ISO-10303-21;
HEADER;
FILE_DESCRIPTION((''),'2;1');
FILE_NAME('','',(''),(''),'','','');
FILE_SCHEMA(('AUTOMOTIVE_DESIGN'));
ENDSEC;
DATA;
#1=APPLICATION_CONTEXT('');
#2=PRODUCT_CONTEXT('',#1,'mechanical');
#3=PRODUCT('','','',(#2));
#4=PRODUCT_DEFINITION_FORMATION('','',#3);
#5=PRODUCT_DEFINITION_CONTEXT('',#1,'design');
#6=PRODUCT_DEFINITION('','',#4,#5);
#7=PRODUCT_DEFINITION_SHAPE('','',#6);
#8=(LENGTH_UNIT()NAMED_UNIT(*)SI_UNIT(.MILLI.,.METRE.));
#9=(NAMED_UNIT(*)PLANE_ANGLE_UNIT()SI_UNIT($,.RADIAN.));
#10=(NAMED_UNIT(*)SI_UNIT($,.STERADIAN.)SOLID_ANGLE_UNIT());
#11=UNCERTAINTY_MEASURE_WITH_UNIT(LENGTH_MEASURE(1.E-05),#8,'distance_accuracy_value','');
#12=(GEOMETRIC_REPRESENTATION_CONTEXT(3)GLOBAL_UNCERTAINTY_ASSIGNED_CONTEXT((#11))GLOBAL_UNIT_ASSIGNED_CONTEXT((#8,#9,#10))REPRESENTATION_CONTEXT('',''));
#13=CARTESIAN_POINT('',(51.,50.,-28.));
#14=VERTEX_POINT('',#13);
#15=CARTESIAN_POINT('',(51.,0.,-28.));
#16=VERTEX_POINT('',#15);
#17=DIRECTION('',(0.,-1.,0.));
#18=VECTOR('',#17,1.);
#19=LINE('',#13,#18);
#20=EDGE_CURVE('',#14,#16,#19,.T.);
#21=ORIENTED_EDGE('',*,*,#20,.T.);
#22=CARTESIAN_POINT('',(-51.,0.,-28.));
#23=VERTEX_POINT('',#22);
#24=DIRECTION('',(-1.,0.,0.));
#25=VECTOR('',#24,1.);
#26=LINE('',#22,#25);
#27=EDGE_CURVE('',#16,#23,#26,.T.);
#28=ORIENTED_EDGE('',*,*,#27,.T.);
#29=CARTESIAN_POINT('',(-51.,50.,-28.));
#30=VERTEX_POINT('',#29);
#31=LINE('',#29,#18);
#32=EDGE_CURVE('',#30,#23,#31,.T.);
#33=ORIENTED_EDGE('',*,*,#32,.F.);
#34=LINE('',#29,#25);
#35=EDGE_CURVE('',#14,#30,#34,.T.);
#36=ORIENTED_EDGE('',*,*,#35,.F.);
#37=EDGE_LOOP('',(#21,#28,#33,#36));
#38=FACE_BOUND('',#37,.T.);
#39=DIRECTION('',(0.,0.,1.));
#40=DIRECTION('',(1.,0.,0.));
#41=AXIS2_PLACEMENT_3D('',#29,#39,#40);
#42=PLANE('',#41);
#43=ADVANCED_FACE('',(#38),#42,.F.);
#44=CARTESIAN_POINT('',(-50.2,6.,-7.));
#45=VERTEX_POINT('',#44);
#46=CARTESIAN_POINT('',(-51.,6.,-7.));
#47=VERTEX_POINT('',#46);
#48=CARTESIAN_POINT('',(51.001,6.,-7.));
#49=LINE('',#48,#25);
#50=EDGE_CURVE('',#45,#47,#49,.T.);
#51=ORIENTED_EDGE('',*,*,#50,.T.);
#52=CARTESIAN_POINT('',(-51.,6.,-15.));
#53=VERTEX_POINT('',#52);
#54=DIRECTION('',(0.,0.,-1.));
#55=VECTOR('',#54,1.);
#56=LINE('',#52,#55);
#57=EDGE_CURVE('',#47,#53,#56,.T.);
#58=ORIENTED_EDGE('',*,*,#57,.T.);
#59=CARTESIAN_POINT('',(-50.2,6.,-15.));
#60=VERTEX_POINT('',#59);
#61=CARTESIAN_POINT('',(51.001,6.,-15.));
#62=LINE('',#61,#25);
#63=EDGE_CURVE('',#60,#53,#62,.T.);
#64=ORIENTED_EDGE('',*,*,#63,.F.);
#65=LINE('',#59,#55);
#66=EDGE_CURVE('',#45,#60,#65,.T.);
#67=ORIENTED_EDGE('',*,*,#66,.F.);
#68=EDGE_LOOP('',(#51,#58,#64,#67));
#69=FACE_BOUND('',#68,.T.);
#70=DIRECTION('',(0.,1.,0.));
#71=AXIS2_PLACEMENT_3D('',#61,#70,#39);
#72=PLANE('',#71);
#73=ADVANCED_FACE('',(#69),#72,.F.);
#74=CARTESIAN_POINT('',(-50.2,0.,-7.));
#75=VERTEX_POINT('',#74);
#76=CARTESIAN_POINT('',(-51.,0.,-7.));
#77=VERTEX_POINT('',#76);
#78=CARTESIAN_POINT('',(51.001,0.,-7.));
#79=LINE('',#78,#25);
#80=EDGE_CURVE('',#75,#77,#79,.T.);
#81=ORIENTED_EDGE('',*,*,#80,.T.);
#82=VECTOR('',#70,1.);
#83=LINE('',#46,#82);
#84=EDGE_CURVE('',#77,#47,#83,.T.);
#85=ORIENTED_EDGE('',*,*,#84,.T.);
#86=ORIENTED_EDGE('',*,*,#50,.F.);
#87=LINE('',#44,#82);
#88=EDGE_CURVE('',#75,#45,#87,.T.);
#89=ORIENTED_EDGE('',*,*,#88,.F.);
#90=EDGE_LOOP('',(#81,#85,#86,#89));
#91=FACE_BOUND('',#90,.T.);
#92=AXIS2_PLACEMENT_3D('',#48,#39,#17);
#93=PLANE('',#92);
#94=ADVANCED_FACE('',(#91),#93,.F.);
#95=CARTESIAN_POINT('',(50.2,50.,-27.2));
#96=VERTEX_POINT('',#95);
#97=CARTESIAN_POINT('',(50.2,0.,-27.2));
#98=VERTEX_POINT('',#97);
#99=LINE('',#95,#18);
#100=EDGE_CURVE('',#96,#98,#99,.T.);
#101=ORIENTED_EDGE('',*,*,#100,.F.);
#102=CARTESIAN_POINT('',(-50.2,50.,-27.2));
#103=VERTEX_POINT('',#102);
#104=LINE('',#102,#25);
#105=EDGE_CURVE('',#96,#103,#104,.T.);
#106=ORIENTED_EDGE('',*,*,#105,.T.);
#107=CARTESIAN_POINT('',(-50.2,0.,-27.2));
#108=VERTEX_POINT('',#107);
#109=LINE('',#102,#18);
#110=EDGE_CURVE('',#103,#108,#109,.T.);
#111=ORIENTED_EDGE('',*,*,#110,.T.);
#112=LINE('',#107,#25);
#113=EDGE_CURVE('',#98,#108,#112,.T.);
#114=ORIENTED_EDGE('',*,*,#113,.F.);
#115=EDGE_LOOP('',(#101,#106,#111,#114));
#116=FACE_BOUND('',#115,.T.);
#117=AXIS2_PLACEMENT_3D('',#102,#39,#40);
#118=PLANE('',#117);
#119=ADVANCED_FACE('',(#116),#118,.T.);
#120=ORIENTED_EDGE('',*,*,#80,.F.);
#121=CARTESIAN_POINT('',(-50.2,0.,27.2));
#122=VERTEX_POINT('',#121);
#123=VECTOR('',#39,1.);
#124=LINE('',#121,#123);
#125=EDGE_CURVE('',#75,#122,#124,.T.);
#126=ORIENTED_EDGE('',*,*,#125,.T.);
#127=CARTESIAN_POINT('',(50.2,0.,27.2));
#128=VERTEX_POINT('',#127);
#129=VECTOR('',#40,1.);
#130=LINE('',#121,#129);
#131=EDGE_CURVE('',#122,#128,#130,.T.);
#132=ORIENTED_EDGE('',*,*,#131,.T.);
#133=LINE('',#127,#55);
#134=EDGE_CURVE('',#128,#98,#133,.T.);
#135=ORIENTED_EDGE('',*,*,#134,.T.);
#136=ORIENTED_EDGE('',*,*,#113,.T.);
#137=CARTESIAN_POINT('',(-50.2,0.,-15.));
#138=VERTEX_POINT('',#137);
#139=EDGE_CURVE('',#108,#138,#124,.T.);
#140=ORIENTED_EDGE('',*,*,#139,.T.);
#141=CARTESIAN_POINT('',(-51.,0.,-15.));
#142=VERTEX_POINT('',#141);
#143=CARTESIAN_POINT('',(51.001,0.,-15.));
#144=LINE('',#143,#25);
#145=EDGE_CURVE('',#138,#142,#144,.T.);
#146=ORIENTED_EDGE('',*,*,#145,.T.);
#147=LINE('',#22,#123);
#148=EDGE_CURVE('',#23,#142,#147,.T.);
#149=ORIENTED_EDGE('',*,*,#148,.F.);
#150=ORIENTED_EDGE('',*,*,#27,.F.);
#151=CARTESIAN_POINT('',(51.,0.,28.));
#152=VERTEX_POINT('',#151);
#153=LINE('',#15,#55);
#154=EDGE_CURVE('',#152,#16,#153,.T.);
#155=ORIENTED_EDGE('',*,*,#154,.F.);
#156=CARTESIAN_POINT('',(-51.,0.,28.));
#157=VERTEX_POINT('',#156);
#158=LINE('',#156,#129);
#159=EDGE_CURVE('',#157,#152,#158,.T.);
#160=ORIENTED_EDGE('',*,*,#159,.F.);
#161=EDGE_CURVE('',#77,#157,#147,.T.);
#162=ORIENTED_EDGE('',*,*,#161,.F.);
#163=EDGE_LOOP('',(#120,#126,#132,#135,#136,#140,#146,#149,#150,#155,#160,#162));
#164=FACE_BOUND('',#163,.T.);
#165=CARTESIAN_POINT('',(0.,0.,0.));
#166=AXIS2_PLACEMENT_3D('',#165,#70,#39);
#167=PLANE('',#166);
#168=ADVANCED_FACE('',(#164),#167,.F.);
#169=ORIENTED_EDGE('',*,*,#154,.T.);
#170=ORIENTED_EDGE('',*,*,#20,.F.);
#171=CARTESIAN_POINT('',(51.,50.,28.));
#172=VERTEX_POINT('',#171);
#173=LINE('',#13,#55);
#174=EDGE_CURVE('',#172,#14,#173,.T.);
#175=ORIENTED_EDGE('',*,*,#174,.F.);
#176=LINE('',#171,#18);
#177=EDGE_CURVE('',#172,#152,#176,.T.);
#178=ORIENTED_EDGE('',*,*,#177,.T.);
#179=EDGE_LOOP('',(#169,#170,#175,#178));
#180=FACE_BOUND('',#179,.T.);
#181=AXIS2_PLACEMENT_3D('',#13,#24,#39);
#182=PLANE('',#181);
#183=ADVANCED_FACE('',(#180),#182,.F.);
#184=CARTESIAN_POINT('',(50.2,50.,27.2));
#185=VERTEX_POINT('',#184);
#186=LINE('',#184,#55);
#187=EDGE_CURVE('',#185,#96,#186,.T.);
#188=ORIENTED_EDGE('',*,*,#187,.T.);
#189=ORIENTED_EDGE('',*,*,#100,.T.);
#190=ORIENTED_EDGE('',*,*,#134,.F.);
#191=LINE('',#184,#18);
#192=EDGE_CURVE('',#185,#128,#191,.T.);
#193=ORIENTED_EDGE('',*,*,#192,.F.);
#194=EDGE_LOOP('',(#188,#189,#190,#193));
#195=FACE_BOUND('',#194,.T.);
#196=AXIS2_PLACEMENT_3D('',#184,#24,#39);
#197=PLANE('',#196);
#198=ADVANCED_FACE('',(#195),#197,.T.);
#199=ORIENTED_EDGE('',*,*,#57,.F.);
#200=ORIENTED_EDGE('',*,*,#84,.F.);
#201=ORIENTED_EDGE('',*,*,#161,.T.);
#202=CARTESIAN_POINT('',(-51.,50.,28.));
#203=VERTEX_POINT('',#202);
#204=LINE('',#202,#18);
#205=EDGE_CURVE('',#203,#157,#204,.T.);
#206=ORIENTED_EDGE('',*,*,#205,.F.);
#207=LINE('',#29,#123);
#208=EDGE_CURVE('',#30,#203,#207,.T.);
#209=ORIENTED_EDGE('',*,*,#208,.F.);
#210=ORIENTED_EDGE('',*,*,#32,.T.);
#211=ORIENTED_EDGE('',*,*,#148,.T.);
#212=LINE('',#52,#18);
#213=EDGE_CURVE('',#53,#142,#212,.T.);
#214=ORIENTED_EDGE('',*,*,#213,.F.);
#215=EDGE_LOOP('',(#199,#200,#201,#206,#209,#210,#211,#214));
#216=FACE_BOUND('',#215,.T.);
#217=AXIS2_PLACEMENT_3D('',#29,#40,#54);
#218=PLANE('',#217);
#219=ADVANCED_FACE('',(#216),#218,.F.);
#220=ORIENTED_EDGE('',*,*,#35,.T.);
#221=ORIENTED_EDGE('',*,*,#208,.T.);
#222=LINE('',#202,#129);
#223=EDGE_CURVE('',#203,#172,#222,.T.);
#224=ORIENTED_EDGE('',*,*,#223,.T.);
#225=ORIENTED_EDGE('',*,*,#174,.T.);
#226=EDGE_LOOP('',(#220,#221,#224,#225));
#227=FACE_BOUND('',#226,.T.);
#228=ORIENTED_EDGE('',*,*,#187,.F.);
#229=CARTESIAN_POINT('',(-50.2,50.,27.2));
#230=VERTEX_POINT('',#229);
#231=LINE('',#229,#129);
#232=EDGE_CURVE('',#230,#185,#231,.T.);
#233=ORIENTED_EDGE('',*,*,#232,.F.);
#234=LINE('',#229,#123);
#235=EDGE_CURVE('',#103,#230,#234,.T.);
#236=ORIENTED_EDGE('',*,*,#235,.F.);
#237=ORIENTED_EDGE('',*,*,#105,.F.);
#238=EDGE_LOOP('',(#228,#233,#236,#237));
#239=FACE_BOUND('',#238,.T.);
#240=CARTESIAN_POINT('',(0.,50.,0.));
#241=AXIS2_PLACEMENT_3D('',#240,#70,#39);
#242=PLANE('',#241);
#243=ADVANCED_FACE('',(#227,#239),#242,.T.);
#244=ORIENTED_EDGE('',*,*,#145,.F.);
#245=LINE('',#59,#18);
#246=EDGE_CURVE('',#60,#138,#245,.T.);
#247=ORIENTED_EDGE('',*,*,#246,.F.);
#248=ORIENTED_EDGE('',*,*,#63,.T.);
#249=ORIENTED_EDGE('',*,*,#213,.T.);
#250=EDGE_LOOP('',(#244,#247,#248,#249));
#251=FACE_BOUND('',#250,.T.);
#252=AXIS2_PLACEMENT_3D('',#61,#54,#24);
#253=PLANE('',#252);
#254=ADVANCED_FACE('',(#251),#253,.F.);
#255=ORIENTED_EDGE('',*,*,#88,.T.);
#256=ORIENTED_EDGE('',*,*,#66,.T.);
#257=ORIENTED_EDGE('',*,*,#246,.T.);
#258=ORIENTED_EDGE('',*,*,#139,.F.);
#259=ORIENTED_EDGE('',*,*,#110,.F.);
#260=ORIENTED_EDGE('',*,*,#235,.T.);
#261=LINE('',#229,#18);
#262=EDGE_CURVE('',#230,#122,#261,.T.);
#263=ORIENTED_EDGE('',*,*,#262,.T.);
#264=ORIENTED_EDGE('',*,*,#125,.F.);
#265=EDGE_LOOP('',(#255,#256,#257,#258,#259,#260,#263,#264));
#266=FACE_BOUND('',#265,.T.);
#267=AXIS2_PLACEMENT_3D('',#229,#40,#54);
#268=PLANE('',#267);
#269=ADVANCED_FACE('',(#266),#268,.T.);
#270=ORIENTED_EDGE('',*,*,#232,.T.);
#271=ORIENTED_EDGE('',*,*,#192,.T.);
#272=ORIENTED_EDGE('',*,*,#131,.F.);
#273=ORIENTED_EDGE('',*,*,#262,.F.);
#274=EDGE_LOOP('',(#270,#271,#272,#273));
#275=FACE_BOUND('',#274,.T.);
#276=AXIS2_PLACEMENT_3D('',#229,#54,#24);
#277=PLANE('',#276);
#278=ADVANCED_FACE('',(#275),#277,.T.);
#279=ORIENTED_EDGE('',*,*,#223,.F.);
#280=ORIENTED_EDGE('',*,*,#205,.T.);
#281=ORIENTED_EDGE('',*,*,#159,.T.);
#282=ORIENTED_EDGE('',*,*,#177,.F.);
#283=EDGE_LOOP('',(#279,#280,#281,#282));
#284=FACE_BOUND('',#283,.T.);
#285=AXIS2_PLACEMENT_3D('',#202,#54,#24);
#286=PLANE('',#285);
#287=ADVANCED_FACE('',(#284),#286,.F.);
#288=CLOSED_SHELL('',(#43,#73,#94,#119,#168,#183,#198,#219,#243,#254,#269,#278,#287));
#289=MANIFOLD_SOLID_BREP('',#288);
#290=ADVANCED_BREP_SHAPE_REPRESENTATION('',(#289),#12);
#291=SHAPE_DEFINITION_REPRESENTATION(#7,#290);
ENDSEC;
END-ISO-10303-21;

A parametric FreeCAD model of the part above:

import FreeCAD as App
import Part
import Sketcher
Q = App.Units.Quantity


def add_polygon(sketch, points):
    """Adds a closed chain of lines whose ends are joined by coincident constraints."""
    first, n = sketch.GeometryCount, len(points)
    for a, b in zip(points, points[1:] + points[:1]):
        sketch.addGeometry(Part.LineSegment(App.Vector(*a, 0), App.Vector(*b, 0)), False)
    for i in range(n):
        sketch.addConstraint(Sketcher.Constraint("Coincident", first + i, 2, first + (i + 1) % n, 1))

doc = App.newDocument("Part")
body = doc.addObject("PartDesign::Body", "Body")

# Sketch on XZ plane
sketch1 = body.newObject("Sketcher::SketchObject", "Sketch")
sketch1.AttachmentSupport = (doc.getObject("XZ_Plane"), [""])
sketch1.MapMode = "FlatFace"
add_polygon(sketch1, [(-51, -28), (-51, 28), (51, 28), (51, -28)])  # lines 0-3
add_polygon(sketch1, [(50, 27), (-50, 27), (-50, -27), (50, -27)])  # lines 4-7
sketch1.addConstraint(Sketcher.Constraint("Vertical", 0))
sketch1.addConstraint(Sketcher.Constraint("Horizontal", 1))
sketch1.addConstraint(Sketcher.Constraint("Vertical", 2))
sketch1.addConstraint(Sketcher.Constraint("Horizontal", 3))
sketch1.addConstraint(Sketcher.Constraint("Horizontal", 4))
sketch1.addConstraint(Sketcher.Constraint("Vertical", 5))
sketch1.addConstraint(Sketcher.Constraint("Horizontal", 6))
sketch1.addConstraint(Sketcher.Constraint("Vertical", 7))
sketch1.addConstraint(Sketcher.Constraint("Symmetric", 0, 2, 2, 2, -1, 1))
sketch1.addConstraint(Sketcher.Constraint("Symmetric", 4, 2, 6, 2, -1, 1))
sketch1.addConstraint(Sketcher.Constraint("DistanceX", 1, 1, 1, 2, Q("102 mm")))
sketch1.addConstraint(Sketcher.Constraint("DistanceY", 0, 1, 0, 2, Q("56 mm")))
sketch1.addConstraint(Sketcher.Constraint("DistanceX", 4, 2, 4, 1, Q("100.4 mm")))
sketch1.addConstraint(Sketcher.Constraint("DistanceY", 5, 2, 5, 1, Q("54.4 mm")))
pad1 = body.newObject("PartDesign::Pad", "Pad")
pad1.Profile = sketch1
pad1.Length = 50
pad1.Reversed = True

# Sketch on YZ plane
sketch2 = body.newObject("Sketcher::SketchObject", "Sketch001")
sketch2.AttachmentSupport = (doc.getObject("YZ_Plane"), [""])
sketch2.MapMode = "FlatFace"
sketch2.AttachmentOffset = App.Placement(App.Vector(0, 0, -51), App.Rotation())
add_polygon(sketch2, [(6, -15), (0, -15), (0, -7), (6, -7)])  # lines 0-3
sketch2.addConstraint(Sketcher.Constraint("Horizontal", 0))
sketch2.addConstraint(Sketcher.Constraint("Vertical", 1))
sketch2.addConstraint(Sketcher.Constraint("Horizontal", 2))
sketch2.addConstraint(Sketcher.Constraint("Vertical", 3))
sketch2.addConstraint(Sketcher.Constraint("PointOnObject", 0, 2, -2))
sketch2.addConstraint(Sketcher.Constraint("DistanceX", 0, 2, 0, 1, Q("6 mm")))
sketch2.addConstraint(Sketcher.Constraint("DistanceY", 1, 1, 1, 2, Q("8 mm")))
sketch2.addConstraint(Sketcher.Constraint("DistanceY", 0, 2, -1, 1, Q("15 mm")))
pocket1 = body.newObject("PartDesign::Pocket", "Pocket")
pocket1.Profile = sketch2
pocket1.Type = "UpToFirst"
pocket1.Reversed = True

doc.recompute()
